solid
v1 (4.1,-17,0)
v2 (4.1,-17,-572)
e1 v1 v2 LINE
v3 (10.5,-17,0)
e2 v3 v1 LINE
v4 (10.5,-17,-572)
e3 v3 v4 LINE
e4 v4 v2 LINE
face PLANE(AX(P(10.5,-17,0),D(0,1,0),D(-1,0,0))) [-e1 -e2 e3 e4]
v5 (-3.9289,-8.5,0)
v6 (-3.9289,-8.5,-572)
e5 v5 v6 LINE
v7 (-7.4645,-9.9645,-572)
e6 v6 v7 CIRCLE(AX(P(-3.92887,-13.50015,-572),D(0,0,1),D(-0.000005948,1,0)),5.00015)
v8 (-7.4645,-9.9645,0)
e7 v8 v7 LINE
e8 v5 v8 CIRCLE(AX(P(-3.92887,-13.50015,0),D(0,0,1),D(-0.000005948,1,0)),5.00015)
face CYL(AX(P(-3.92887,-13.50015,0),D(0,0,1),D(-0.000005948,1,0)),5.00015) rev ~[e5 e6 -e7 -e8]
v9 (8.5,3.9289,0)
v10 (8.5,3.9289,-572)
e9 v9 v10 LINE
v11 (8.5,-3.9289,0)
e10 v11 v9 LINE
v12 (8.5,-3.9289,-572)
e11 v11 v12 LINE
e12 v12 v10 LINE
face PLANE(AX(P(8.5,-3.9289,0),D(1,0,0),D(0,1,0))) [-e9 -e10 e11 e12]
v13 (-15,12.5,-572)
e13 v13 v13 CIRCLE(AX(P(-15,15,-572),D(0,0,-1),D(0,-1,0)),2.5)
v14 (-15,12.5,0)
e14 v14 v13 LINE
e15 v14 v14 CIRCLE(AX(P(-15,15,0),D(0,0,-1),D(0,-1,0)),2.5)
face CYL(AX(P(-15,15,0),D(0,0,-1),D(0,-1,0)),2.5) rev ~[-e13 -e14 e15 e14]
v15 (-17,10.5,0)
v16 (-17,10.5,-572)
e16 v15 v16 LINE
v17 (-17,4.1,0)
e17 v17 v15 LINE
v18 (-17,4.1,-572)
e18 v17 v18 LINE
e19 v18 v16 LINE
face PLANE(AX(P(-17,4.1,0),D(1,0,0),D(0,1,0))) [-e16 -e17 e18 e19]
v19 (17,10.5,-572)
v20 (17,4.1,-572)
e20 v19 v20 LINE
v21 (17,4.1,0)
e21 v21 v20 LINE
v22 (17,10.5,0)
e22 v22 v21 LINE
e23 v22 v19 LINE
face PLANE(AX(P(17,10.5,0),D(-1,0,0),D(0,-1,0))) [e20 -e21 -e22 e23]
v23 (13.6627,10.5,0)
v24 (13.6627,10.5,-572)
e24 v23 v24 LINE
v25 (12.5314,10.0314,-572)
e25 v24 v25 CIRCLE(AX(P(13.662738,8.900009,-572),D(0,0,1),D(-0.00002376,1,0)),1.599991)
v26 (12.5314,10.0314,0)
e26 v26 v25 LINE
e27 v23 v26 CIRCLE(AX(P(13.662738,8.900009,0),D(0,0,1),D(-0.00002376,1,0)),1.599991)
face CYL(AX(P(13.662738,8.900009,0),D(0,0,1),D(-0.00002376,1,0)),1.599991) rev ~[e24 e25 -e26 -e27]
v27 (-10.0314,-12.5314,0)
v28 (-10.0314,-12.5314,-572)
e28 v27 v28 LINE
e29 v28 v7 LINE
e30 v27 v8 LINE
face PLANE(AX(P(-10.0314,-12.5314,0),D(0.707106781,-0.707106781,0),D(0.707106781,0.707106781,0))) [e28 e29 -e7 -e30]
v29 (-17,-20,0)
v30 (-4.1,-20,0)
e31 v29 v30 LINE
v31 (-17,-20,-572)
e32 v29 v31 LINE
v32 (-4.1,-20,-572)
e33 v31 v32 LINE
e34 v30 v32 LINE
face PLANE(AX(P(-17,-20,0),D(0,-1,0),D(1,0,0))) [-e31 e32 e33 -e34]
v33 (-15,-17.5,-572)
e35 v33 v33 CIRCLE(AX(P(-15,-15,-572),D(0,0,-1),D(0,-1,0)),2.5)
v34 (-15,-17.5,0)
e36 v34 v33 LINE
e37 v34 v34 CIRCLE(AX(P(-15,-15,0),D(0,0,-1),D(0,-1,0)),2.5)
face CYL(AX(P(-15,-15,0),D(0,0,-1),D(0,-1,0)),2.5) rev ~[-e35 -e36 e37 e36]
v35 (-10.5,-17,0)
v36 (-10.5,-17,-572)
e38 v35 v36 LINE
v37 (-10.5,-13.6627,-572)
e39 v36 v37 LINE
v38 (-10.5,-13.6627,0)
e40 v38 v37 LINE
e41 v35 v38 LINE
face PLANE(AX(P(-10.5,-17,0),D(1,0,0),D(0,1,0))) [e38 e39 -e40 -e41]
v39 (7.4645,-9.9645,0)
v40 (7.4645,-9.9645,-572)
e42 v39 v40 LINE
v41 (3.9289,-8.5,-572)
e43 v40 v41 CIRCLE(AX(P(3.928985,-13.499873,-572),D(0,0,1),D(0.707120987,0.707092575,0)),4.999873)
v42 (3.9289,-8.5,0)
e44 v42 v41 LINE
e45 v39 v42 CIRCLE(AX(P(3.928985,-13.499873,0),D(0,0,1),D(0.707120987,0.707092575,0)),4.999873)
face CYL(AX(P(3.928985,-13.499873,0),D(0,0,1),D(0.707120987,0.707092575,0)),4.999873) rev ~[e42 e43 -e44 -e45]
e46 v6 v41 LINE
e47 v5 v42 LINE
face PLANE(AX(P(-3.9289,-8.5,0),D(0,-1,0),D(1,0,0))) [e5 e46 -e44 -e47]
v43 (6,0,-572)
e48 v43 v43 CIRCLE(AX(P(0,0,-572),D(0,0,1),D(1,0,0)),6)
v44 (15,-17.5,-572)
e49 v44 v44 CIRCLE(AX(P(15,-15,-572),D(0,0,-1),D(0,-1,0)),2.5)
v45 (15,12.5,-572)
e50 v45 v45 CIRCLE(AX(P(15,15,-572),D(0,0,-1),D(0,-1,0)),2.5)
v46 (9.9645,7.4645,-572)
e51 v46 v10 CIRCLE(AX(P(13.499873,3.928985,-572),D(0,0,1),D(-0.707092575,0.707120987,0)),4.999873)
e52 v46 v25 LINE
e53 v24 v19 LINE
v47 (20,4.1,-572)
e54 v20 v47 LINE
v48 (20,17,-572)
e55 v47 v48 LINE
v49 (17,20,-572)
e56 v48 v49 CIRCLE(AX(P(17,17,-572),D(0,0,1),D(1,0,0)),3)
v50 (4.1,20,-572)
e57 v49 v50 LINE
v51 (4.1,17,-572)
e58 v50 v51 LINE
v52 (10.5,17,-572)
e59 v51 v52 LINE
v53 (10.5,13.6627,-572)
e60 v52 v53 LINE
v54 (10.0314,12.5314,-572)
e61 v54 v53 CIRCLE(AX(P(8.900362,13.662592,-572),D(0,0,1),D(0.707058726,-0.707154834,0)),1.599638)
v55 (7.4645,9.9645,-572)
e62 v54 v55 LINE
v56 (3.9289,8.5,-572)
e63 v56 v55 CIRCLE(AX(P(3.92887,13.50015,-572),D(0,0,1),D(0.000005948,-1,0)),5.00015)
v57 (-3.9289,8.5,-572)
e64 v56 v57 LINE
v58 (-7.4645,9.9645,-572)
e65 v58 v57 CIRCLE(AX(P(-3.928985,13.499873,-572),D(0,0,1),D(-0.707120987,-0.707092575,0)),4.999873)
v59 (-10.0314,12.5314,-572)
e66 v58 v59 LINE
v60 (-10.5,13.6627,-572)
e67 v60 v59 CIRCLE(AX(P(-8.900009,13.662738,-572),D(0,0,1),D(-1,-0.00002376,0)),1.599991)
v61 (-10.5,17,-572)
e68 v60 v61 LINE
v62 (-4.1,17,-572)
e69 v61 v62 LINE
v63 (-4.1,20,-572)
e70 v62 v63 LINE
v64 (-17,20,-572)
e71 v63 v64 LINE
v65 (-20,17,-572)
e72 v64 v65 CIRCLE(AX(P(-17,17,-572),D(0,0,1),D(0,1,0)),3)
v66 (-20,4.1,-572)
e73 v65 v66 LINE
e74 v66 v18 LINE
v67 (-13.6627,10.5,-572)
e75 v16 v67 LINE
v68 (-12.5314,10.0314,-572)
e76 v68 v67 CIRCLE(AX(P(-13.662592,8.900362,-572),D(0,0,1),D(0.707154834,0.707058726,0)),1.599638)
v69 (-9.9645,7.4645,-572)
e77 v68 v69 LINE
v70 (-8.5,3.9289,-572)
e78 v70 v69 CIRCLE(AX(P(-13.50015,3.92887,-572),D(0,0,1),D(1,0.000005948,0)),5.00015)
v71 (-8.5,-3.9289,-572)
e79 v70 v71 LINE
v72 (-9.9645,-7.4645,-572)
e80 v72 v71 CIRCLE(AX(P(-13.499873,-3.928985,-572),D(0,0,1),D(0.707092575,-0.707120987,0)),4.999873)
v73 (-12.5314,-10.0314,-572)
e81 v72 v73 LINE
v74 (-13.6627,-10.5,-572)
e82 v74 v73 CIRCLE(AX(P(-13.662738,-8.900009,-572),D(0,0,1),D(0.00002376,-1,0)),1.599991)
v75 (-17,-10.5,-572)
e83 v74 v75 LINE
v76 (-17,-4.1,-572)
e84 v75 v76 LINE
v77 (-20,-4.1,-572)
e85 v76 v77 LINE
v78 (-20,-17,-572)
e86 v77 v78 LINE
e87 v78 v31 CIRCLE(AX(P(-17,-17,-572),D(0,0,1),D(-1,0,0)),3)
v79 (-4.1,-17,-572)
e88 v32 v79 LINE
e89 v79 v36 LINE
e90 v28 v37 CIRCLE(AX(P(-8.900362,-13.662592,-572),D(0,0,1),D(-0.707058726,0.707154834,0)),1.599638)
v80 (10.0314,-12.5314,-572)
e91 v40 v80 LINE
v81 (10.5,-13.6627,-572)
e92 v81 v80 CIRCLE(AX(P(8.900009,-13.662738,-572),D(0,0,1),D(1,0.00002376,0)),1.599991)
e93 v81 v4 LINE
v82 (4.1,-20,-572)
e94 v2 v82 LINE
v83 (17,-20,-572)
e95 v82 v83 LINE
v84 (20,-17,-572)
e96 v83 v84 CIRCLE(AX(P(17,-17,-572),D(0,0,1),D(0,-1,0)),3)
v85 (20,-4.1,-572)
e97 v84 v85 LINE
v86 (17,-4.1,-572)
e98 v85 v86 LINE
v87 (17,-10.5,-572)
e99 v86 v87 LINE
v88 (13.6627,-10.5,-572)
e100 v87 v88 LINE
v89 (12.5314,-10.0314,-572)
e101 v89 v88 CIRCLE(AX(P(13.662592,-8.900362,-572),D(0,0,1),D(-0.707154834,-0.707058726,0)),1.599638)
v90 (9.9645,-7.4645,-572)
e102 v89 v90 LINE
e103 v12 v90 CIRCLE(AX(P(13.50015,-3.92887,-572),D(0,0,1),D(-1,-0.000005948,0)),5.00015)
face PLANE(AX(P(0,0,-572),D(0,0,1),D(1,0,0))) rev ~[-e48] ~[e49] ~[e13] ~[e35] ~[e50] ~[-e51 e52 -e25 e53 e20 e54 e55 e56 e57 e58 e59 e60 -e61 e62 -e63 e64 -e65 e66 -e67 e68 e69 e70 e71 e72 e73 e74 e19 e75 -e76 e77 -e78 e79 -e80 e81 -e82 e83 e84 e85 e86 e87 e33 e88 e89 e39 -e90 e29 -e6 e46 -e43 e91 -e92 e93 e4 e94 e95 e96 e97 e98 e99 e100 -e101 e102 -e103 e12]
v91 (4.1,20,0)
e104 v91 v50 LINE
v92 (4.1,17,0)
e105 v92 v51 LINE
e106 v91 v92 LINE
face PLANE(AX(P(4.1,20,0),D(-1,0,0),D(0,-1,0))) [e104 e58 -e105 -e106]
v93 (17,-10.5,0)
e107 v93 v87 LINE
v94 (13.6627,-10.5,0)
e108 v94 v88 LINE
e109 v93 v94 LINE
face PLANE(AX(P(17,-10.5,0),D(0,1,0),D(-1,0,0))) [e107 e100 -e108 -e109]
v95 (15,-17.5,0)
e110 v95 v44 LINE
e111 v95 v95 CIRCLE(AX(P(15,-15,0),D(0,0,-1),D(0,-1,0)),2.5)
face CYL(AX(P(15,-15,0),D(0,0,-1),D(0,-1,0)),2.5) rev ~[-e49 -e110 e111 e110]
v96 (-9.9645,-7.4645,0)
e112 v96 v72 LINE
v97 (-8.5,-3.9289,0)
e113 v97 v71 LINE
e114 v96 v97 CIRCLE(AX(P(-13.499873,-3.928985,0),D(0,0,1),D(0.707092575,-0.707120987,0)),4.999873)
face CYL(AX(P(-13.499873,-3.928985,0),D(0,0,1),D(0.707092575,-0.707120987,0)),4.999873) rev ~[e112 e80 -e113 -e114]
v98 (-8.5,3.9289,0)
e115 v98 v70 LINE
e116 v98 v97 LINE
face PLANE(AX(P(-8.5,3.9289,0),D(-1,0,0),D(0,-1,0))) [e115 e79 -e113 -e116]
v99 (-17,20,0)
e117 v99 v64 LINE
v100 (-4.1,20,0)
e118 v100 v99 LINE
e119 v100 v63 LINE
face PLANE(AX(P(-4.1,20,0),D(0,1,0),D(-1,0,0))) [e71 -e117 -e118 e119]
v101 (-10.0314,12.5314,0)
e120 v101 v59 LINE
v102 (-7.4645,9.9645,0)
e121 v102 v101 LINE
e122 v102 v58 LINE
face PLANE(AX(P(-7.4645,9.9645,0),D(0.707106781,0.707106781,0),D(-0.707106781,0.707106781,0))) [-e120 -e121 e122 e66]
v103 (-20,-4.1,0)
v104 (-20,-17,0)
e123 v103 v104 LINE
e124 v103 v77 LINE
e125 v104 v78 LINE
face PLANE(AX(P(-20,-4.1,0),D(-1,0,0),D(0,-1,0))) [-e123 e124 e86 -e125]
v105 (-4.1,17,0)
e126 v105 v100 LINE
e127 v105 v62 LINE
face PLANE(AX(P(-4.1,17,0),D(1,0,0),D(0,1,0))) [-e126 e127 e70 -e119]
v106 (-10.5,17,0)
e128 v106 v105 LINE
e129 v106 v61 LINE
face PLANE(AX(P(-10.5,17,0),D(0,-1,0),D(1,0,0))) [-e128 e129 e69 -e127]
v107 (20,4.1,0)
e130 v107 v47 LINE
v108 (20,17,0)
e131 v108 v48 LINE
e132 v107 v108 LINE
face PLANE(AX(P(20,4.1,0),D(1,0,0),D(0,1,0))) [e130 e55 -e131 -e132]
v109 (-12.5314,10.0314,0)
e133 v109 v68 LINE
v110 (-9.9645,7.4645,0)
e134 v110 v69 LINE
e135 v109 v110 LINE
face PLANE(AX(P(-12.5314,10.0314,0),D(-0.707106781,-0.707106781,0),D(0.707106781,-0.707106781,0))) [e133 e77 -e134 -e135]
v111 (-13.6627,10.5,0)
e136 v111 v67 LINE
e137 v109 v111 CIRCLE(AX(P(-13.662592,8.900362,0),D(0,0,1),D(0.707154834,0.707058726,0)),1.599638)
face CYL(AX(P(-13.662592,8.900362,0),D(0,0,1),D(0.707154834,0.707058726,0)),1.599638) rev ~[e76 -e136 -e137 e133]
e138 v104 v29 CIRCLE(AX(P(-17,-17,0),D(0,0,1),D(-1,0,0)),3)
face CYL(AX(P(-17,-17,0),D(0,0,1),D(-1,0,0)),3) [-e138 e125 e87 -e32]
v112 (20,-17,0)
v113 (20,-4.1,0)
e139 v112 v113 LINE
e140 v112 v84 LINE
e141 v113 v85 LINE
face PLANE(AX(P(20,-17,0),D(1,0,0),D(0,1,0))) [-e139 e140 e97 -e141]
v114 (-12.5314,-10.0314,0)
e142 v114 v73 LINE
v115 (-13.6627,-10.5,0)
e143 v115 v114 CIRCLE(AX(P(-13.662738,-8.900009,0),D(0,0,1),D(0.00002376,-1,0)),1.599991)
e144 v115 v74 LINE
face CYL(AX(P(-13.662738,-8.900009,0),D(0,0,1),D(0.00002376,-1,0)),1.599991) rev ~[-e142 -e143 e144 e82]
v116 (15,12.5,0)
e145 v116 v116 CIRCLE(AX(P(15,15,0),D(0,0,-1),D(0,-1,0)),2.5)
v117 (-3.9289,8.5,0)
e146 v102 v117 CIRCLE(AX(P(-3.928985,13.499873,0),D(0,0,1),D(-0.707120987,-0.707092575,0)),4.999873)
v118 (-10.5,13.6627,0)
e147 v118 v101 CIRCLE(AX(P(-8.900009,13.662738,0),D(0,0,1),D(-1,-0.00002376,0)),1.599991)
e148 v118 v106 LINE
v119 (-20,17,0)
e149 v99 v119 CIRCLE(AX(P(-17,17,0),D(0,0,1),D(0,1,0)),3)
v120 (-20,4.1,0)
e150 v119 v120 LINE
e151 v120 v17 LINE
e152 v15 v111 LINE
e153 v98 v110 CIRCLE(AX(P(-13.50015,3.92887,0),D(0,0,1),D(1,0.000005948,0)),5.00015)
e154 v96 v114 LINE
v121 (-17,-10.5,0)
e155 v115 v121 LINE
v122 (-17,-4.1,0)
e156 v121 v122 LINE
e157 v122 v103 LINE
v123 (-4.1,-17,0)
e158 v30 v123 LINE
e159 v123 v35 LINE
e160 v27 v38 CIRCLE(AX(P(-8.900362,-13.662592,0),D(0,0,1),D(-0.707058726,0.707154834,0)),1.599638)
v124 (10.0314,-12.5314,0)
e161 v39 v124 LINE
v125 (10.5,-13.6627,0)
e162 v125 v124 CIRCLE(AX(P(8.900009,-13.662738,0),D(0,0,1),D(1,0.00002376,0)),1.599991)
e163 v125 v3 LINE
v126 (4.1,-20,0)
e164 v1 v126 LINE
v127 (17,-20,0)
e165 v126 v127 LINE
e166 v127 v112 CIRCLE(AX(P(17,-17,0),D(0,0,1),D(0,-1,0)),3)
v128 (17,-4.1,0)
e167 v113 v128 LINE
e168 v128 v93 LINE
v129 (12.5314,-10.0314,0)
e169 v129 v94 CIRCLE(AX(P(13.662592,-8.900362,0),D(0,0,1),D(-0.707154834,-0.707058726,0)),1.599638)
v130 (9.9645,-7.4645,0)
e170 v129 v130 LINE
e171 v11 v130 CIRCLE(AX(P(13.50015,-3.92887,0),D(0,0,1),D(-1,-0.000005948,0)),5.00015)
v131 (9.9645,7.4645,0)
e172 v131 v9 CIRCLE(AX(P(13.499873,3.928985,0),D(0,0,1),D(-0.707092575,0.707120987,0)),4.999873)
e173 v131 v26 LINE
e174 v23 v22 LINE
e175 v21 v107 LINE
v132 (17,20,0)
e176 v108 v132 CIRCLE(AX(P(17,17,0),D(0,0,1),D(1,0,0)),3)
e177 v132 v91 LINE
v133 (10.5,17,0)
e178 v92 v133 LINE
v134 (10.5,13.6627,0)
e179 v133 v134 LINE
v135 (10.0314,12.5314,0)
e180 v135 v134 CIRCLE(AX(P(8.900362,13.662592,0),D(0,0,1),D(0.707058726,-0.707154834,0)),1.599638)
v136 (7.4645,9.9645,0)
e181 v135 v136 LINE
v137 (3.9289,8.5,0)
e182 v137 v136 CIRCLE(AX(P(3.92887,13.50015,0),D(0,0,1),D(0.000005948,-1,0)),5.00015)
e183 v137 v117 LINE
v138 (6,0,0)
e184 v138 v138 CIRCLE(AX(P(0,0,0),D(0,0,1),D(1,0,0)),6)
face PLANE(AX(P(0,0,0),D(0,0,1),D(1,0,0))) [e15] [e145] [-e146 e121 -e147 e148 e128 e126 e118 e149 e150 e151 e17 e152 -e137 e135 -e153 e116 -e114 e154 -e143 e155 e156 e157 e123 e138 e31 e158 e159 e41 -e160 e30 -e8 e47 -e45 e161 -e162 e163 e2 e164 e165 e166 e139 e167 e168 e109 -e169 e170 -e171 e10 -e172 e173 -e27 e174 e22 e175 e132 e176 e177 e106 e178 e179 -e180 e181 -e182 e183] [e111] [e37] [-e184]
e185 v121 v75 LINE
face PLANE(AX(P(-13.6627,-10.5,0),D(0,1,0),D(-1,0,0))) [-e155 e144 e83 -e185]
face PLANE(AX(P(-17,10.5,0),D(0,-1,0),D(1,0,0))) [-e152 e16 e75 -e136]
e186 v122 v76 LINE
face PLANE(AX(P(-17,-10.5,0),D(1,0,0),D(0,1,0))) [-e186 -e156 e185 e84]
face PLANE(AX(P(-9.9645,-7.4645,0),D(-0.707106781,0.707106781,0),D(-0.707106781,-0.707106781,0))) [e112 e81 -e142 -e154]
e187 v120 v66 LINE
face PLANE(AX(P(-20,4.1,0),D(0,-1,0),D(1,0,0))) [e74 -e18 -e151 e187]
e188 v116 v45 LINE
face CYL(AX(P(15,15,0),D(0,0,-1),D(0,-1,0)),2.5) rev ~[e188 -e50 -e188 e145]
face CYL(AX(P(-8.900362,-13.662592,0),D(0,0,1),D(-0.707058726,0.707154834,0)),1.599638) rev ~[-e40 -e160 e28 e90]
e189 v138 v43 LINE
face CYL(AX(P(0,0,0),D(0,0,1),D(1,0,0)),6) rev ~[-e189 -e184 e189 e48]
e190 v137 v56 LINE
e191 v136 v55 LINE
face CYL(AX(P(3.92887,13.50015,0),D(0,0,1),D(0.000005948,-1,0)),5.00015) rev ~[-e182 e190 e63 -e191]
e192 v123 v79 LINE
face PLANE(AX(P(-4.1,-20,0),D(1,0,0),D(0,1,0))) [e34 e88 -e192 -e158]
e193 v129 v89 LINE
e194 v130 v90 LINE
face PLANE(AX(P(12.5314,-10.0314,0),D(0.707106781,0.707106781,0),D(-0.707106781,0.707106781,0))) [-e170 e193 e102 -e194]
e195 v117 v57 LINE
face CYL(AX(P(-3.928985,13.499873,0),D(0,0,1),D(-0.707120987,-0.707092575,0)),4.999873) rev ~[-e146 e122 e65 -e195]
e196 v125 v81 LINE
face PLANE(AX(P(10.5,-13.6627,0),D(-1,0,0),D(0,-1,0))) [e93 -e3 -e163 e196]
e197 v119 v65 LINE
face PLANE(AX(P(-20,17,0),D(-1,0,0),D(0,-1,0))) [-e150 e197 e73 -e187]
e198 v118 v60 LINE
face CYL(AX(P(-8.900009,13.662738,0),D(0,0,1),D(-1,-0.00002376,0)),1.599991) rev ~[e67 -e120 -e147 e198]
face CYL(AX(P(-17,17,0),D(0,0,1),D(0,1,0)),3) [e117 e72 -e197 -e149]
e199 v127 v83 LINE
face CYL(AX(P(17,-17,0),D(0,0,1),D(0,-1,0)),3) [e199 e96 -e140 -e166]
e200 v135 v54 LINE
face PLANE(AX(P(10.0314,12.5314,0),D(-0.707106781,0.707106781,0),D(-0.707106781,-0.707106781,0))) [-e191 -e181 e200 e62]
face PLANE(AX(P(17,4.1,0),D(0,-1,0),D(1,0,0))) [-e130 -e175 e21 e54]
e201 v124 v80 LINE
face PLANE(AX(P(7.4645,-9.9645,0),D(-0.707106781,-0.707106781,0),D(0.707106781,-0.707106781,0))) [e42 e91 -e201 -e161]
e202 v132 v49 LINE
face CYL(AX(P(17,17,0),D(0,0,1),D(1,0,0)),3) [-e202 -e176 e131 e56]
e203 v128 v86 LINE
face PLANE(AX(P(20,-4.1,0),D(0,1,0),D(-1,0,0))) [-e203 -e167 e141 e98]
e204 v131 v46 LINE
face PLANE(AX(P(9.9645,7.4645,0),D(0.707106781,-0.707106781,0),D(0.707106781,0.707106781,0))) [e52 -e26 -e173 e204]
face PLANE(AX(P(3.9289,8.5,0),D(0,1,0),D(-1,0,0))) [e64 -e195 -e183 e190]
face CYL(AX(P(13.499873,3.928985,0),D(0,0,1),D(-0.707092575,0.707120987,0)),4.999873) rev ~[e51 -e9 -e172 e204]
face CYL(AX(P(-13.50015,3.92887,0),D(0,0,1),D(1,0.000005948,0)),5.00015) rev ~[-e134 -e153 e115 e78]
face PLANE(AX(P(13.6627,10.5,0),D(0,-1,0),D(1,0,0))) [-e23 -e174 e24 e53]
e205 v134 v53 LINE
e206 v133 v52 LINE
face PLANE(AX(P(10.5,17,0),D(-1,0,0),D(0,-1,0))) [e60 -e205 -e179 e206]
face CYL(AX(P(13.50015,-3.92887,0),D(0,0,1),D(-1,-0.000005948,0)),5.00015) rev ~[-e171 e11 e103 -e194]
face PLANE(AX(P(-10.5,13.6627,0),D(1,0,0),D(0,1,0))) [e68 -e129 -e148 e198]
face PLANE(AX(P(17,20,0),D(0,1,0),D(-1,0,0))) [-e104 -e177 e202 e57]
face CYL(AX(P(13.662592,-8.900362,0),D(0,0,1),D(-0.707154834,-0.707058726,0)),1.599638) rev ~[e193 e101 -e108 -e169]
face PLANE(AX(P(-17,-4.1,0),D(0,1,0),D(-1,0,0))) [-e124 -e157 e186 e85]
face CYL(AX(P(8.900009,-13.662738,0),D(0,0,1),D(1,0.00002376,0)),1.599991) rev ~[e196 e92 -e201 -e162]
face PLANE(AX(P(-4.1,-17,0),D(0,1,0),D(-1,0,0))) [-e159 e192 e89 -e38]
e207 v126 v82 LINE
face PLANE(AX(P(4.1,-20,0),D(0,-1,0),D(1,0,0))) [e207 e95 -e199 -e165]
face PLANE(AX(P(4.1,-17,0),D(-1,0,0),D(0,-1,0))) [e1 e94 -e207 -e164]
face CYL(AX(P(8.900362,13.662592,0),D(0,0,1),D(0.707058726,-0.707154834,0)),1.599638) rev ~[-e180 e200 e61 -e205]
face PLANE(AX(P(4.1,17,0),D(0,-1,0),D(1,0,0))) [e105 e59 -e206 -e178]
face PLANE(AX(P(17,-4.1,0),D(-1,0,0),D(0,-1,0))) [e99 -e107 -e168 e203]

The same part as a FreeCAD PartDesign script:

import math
import FreeCAD as App
import Part
import Sketcher
Q = App.Units.Quantity

doc = App.newDocument("Part")
body = doc.addObject("PartDesign::Body", "Body")

sketch1 = doc.addObject("Sketcher::SketchObject", "Sketch")
body.addObject(sketch1)
sketch1.AttachmentSupport = (doc.XY_Plane, [""])
sketch1.MapMode = "FlatFace"
sketch1.addGeometry(Part.LineSegment(App.Vector(-20, -4.1, 0), App.Vector(-20, -17, 0)), False)
sketch1.addGeometry(Part.ArcOfCircle(Part.Circle(App.Vector(-17, -17, 0), App.Vector(0, 0, 1), 3), math.radians(180), math.radians(270)), False)
sketch1.addGeometry(Part.LineSegment(App.Vector(-17, -20, 0), App.Vector(-4.1, -20, 0)), False)
sketch1.addGeometry(Part.LineSegment(App.Vector(-4.1, -20, 0), App.Vector(-4.1, -17, 0)), False)
sketch1.addGeometry(Part.LineSegment(App.Vector(-4.1, -17, 0), App.Vector(-10.5, -17, 0)), False)
sketch1.addGeometry(Part.LineSegment(App.Vector(-10.5, -17, 0), App.Vector(-10.5, -13.7, 0)), False)
sketch1.addGeometry(Part.ArcOfCircle(Part.Circle(App.Vector(-8.9, -13.7, 0), App.Vector(0, 0, 1), 1.6), math.radians(135), math.radians(180)), False)
sketch1.addGeometry(Part.LineSegment(App.Vector(-10, -12.5, 0), App.Vector(-7.5, -10, 0)), False)
sketch1.addGeometry(Part.ArcOfCircle(Part.Circle(App.Vector(-3.9, -13.5, 0), App.Vector(0, 0, 1), 5), math.radians(90), math.radians(135)), False)
sketch1.addGeometry(Part.LineSegment(App.Vector(-3.9, -8.5, 0), App.Vector(3.9, -8.5, 0)), False)
sketch1.addGeometry(Part.ArcOfCircle(Part.Circle(App.Vector(3.9, -13.5, 0), App.Vector(0, 0, 1), 5), math.radians(45), math.radians(90)), False)
sketch1.addGeometry(Part.LineSegment(App.Vector(7.5, -10, 0), App.Vector(10, -12.5, 0)), False)
sketch1.addGeometry(Part.ArcOfCircle(Part.Circle(App.Vector(8.9, -13.7, 0), App.Vector(0, 0, 1), 1.6), math.radians(0), math.radians(45)), False)
sketch1.addGeometry(Part.LineSegment(App.Vector(10.5, -13.7, 0), App.Vector(10.5, -17, 0)), False)
sketch1.addGeometry(Part.LineSegment(App.Vector(10.5, -17, 0), App.Vector(4.1, -17, 0)), False)
sketch1.addGeometry(Part.LineSegment(App.Vector(4.1, -17, 0), App.Vector(4.1, -20, 0)), False)
sketch1.addGeometry(Part.LineSegment(App.Vector(4.1, -20, 0), App.Vector(17, -20, 0)), False)
sketch1.addGeometry(Part.ArcOfCircle(Part.Circle(App.Vector(17, -17, 0), App.Vector(0, 0, 1), 3), math.radians(-90), math.radians(0)), False)
sketch1.addGeometry(Part.LineSegment(App.Vector(20, -17, 0), App.Vector(20, -4.1, 0)), False)
sketch1.addGeometry(Part.LineSegment(App.Vector(20, -4.1, 0), App.Vector(17, -4.1, 0)), False)
sketch1.addGeometry(Part.LineSegment(App.Vector(17, -4.1, 0), App.Vector(17, -10.5, 0)), False)
sketch1.addGeometry(Part.LineSegment(App.Vector(17, -10.5, 0), App.Vector(13.7, -10.5, 0)), False)
sketch1.addGeometry(Part.ArcOfCircle(Part.Circle(App.Vector(13.7, -8.9, 0), App.Vector(0, 0, 1), 1.6), math.radians(-135), math.radians(-90)), False)
sketch1.addGeometry(Part.LineSegment(App.Vector(12.5, -10, 0), App.Vector(10, -7.5, 0)), False)
sketch1.addGeometry(Part.ArcOfCircle(Part.Circle(App.Vector(13.5, -3.9, 0), App.Vector(0, 0, 1), 5), math.radians(180), math.radians(225)), False)
sketch1.addGeometry(Part.LineSegment(App.Vector(8.5, -3.9, 0), App.Vector(8.5, 3.9, 0)), False)
sketch1.addGeometry(Part.ArcOfCircle(Part.Circle(App.Vector(13.5, 3.9, 0), App.Vector(0, 0, 1), 5), math.radians(135), math.radians(180)), False)
sketch1.addGeometry(Part.LineSegment(App.Vector(10, 7.5, 0), App.Vector(12.5, 10, 0)), False)
sketch1.addGeometry(Part.ArcOfCircle(Part.Circle(App.Vector(13.7, 8.9, 0), App.Vector(0, 0, 1), 1.6), math.radians(90), math.radians(135)), False)
sketch1.addGeometry(Part.LineSegment(App.Vector(13.7, 10.5, 0), App.Vector(17, 10.5, 0)), False)
sketch1.addGeometry(Part.LineSegment(App.Vector(17, 10.5, 0), App.Vector(17, 4.1, 0)), False)
sketch1.addGeometry(Part.LineSegment(App.Vector(17, 4.1, 0), App.Vector(20, 4.1, 0)), False)
sketch1.addGeometry(Part.LineSegment(App.Vector(20, 4.1, 0), App.Vector(20, 17, 0)), False)
sketch1.addGeometry(Part.ArcOfCircle(Part.Circle(App.Vector(17, 17, 0), App.Vector(0, 0, 1), 3), math.radians(0), math.radians(90)), False)
sketch1.addGeometry(Part.LineSegment(App.Vector(17, 20, 0), App.Vector(4.1, 20, 0)), False)
sketch1.addGeometry(Part.LineSegment(App.Vector(4.1, 20, 0), App.Vector(4.1, 17, 0)), False)
sketch1.addGeometry(Part.LineSegment(App.Vector(4.1, 17, 0), App.Vector(10.5, 17, 0)), False)
sketch1.addGeometry(Part.LineSegment(App.Vector(10.5, 17, 0), App.Vector(10.5, 13.7, 0)), False)
sketch1.addGeometry(Part.ArcOfCircle(Part.Circle(App.Vector(8.9, 13.7, 0), App.Vector(0, 0, 1), 1.6), math.radians(-45), math.radians(0)), False)
sketch1.addGeometry(Part.LineSegment(App.Vector(10, 12.5, 0), App.Vector(7.5, 10, 0)), False)
sketch1.addGeometry(Part.ArcOfCircle(Part.Circle(App.Vector(3.9, 13.5, 0), App.Vector(0, 0, 1), 5), math.radians(-90), math.radians(-45)), False)
sketch1.addGeometry(Part.LineSegment(App.Vector(3.9, 8.5, 0), App.Vector(-3.9, 8.5, 0)), False)
sketch1.addGeometry(Part.ArcOfCircle(Part.Circle(App.Vector(-3.9, 13.5, 0), App.Vector(0, 0, 1), 5), math.radians(-135), math.radians(-90)), False)
sketch1.addGeometry(Part.LineSegment(App.Vector(-7.5, 10, 0), App.Vector(-10, 12.5, 0)), False)
sketch1.addGeometry(Part.ArcOfCircle(Part.Circle(App.Vector(-8.9, 13.7, 0), App.Vector(0, 0, 1), 1.6), math.radians(180), math.radians(225)), False)
sketch1.addGeometry(Part.LineSegment(App.Vector(-10.5, 13.7, 0), App.Vector(-10.5, 17, 0)), False)
sketch1.addGeometry(Part.LineSegment(App.Vector(-10.5, 17, 0), App.Vector(-4.1, 17, 0)), False)
sketch1.addGeometry(Part.LineSegment(App.Vector(-4.1, 17, 0), App.Vector(-4.1, 20, 0)), False)
sketch1.addGeometry(Part.LineSegment(App.Vector(-4.1, 20, 0), App.Vector(-17, 20, 0)), False)
sketch1.addGeometry(Part.ArcOfCircle(Part.Circle(App.Vector(-17, 17, 0), App.Vector(0, 0, 1), 3), math.radians(90), math.radians(180)), False)
sketch1.addGeometry(Part.LineSegment(App.Vector(-20, 17, 0), App.Vector(-20, 4.1, 0)), False)
sketch1.addGeometry(Part.LineSegment(App.Vector(-20, 4.1, 0), App.Vector(-17, 4.1, 0)), False)
sketch1.addGeometry(Part.LineSegment(App.Vector(-17, 4.1, 0), App.Vector(-17, 10.5, 0)), False)
sketch1.addGeometry(Part.LineSegment(App.Vector(-17, 10.5, 0), App.Vector(-13.7, 10.5, 0)), False)
sketch1.addGeometry(Part.ArcOfCircle(Part.Circle(App.Vector(-13.7, 8.9, 0), App.Vector(0, 0, 1), 1.6), math.radians(45), math.radians(90)), False)
sketch1.addGeometry(Part.LineSegment(App.Vector(-12.5, 10, 0), App.Vector(-10, 7.5, 0)), False)
sketch1.addGeometry(Part.ArcOfCircle(Part.Circle(App.Vector(-13.5, 3.9, 0), App.Vector(0, 0, 1), 5), math.radians(0), math.radians(45)), False)
sketch1.addGeometry(Part.LineSegment(App.Vector(-8.5, 3.9, 0), App.Vector(-8.5, -3.9, 0)), False)
sketch1.addGeometry(Part.ArcOfCircle(Part.Circle(App.Vector(-13.5, -3.9, 0), App.Vector(0, 0, 1), 5), math.radians(-45), math.radians(0)), False)
sketch1.addGeometry(Part.LineSegment(App.Vector(-10, -7.5, 0), App.Vector(-12.5, -10, 0)), False)
sketch1.addGeometry(Part.ArcOfCircle(Part.Circle(App.Vector(-13.7, -8.9, 0), App.Vector(0, 0, 1), 1.6), math.radians(-90), math.radians(-45)), False)
sketch1.addGeometry(Part.LineSegment(App.Vector(-13.7, -10.5, 0), App.Vector(-17, -10.5, 0)), False)
sketch1.addGeometry(Part.LineSegment(App.Vector(-17, -10.5, 0), App.Vector(-17, -4.1, 0)), False)
sketch1.addGeometry(Part.LineSegment(App.Vector(-17, -4.1, 0), App.Vector(-20, -4.1, 0)), False)
sketch1.addGeometry(Part.Circle(App.Vector(0, 0, 0), App.Vector(0, 0, 1), 6), False)
sketch1.addConstraint(Sketcher.Constraint("Tangent", 0, 2, 1, 1))
sketch1.addConstraint(Sketcher.Constraint("Tangent", 1, 2, 2, 1))
sketch1.addConstraint(Sketcher.Constraint("Coincident", 2, 2, 3, 1))
sketch1.addConstraint(Sketcher.Constraint("Coincident", 3, 2, 4, 1))
sketch1.addConstraint(Sketcher.Constraint("Coincident", 4, 2, 5, 1))
sketch1.addConstraint(Sketcher.Constraint("Tangent", 5, 2, 6, 2))
sketch1.addConstraint(Sketcher.Constraint("Tangent", 6, 1, 7, 1))
sketch1.addConstraint(Sketcher.Constraint("Tangent", 7, 2, 8, 2))
sketch1.addConstraint(Sketcher.Constraint("Tangent", 8, 1, 9, 1))
sketch1.addConstraint(Sketcher.Constraint("Tangent", 9, 2, 10, 2))
sketch1.addConstraint(Sketcher.Constraint("Tangent", 10, 1, 11, 1))
sketch1.addConstraint(Sketcher.Constraint("Tangent", 11, 2, 12, 2))
sketch1.addConstraint(Sketcher.Constraint("Tangent", 12, 1, 13, 1))
sketch1.addConstraint(Sketcher.Constraint("Coincident", 13, 2, 14, 1))
sketch1.addConstraint(Sketcher.Constraint("Coincident", 14, 2, 15, 1))
sketch1.addConstraint(Sketcher.Constraint("Coincident", 15, 2, 16, 1))
sketch1.addConstraint(Sketcher.Constraint("Tangent", 16, 2, 17, 1))
sketch1.addConstraint(Sketcher.Constraint("Tangent", 17, 2, 18, 1))
sketch1.addConstraint(Sketcher.Constraint("Coincident", 18, 2, 19, 1))
sketch1.addConstraint(Sketcher.Constraint("Coincident", 19, 2, 20, 1))
sketch1.addConstraint(Sketcher.Constraint("Coincident", 20, 2, 21, 1))
sketch1.addConstraint(Sketcher.Constraint("Tangent", 21, 2, 22, 2))
sketch1.addConstraint(Sketcher.Constraint("Tangent", 22, 1, 23, 1))
sketch1.addConstraint(Sketcher.Constraint("Tangent", 23, 2, 24, 2))
sketch1.addConstraint(Sketcher.Constraint("Tangent", 24, 1, 25, 1))
sketch1.addConstraint(Sketcher.Constraint("Tangent", 25, 2, 26, 2))
sketch1.addConstraint(Sketcher.Constraint("Tangent", 26, 1, 27, 1))
sketch1.addConstraint(Sketcher.Constraint("Tangent", 27, 2, 28, 2))
sketch1.addConstraint(Sketcher.Constraint("Tangent", 28, 1, 29, 1))
sketch1.addConstraint(Sketcher.Constraint("Coincident", 29, 2, 30, 1))
sketch1.addConstraint(Sketcher.Constraint("Coincident", 30, 2, 31, 1))
sketch1.addConstraint(Sketcher.Constraint("Coincident", 31, 2, 32, 1))
sketch1.addConstraint(Sketcher.Constraint("Tangent", 32, 2, 33, 1))
sketch1.addConstraint(Sketcher.Constraint("Tangent", 33, 2, 34, 1))
sketch1.addConstraint(Sketcher.Constraint("Coincident", 34, 2, 35, 1))
sketch1.addConstraint(Sketcher.Constraint("Coincident", 35, 2, 36, 1))
sketch1.addConstraint(Sketcher.Constraint("Coincident", 36, 2, 37, 1))
sketch1.addConstraint(Sketcher.Constraint("Tangent", 37, 2, 38, 2))
sketch1.addConstraint(Sketcher.Constraint("Tangent", 38, 1, 39, 1))
sketch1.addConstraint(Sketcher.Constraint("Tangent", 39, 2, 40, 2))
sketch1.addConstraint(Sketcher.Constraint("Tangent", 40, 1, 41, 1))
sketch1.addConstraint(Sketcher.Constraint("Tangent", 41, 2, 42, 2))
sketch1.addConstraint(Sketcher.Constraint("Tangent", 42, 1, 43, 1))
sketch1.addConstraint(Sketcher.Constraint("Tangent", 43, 2, 44, 2))
sketch1.addConstraint(Sketcher.Constraint("Tangent", 44, 1, 45, 1))
sketch1.addConstraint(Sketcher.Constraint("Coincident", 45, 2, 46, 1))
sketch1.addConstraint(Sketcher.Constraint("Coincident", 46, 2, 47, 1))
sketch1.addConstraint(Sketcher.Constraint("Coincident", 47, 2, 48, 1))
sketch1.addConstraint(Sketcher.Constraint("Tangent", 48, 2, 49, 1))
sketch1.addConstraint(Sketcher.Constraint("Tangent", 49, 2, 50, 1))
sketch1.addConstraint(Sketcher.Constraint("Coincident", 50, 2, 51, 1))
sketch1.addConstraint(Sketcher.Constraint("Coincident", 51, 2, 52, 1))
sketch1.addConstraint(Sketcher.Constraint("Coincident", 52, 2, 53, 1))
sketch1.addConstraint(Sketcher.Constraint("Tangent", 53, 2, 54, 2))
sketch1.addConstraint(Sketcher.Constraint("Tangent", 54, 1, 55, 1))
sketch1.addConstraint(Sketcher.Constraint("Tangent", 55, 2, 56, 2))
sketch1.addConstraint(Sketcher.Constraint("Tangent", 56, 1, 57, 1))
sketch1.addConstraint(Sketcher.Constraint("Tangent", 57, 2, 58, 2))
sketch1.addConstraint(Sketcher.Constraint("Tangent", 58, 1, 59, 1))
sketch1.addConstraint(Sketcher.Constraint("Tangent", 59, 2, 60, 2))
sketch1.addConstraint(Sketcher.Constraint("Tangent", 60, 1, 61, 1))
sketch1.addConstraint(Sketcher.Constraint("Coincident", 61, 2, 62, 1))
sketch1.addConstraint(Sketcher.Constraint("Coincident", 62, 2, 63, 1))
sketch1.addConstraint(Sketcher.Constraint("Coincident", 63, 2, 0, 1))
sketch1.addConstraint(Sketcher.Constraint("Vertical", 0))
sketch1.addConstraint(Sketcher.Constraint("Horizontal", 2))
sketch1.addConstraint(Sketcher.Constraint("Vertical", 3))
sketch1.addConstraint(Sketcher.Constraint("Horizontal", 4))
sketch1.addConstraint(Sketcher.Constraint("Vertical", 5))
sketch1.addConstraint(Sketcher.Constraint("Horizontal", 9))
sketch1.addConstraint(Sketcher.Constraint("Vertical", 13))
sketch1.addConstraint(Sketcher.Constraint("Horizontal", 14))
sketch1.addConstraint(Sketcher.Constraint("Vertical", 15))
sketch1.addConstraint(Sketcher.Constraint("Horizontal", 16))
sketch1.addConstraint(Sketcher.Constraint("Vertical", 18))
sketch1.addConstraint(Sketcher.Constraint("Horizontal", 19))
sketch1.addConstraint(Sketcher.Constraint("Vertical", 20))
sketch1.addConstraint(Sketcher.Constraint("Horizontal", 21))
sketch1.addConstraint(Sketcher.Constraint("Vertical", 25))
sketch1.addConstraint(Sketcher.Constraint("Horizontal", 29))
sketch1.addConstraint(Sketcher.Constraint("Vertical", 30))
sketch1.addConstraint(Sketcher.Constraint("Horizontal", 31))
sketch1.addConstraint(Sketcher.Constraint("Vertical", 32))
sketch1.addConstraint(Sketcher.Constraint("Horizontal", 34))
sketch1.addConstraint(Sketcher.Constraint("Vertical", 35))
sketch1.addConstraint(Sketcher.Constraint("Horizontal", 36))
sketch1.addConstraint(Sketcher.Constraint("Vertical", 37))
sketch1.addConstraint(Sketcher.Constraint("Horizontal", 41))
sketch1.addConstraint(Sketcher.Constraint("Vertical", 45))
sketch1.addConstraint(Sketcher.Constraint("Horizontal", 46))
sketch1.addConstraint(Sketcher.Constraint("Vertical", 47))
sketch1.addConstraint(Sketcher.Constraint("Horizontal", 48))
sketch1.addConstraint(Sketcher.Constraint("Vertical", 50))
sketch1.addConstraint(Sketcher.Constraint("Horizontal", 51))
sketch1.addConstraint(Sketcher.Constraint("Vertical", 52))
sketch1.addConstraint(Sketcher.Constraint("Horizontal", 53))
sketch1.addConstraint(Sketcher.Constraint("Vertical", 57))
sketch1.addConstraint(Sketcher.Constraint("Horizontal", 61))
sketch1.addConstraint(Sketcher.Constraint("Vertical", 62))
sketch1.addConstraint(Sketcher.Constraint("Horizontal", 63))
sketch1.addConstraint(Sketcher.Constraint("Coincident", 64, 3, -1, 1))
sketch1.addConstraint(Sketcher.Constraint("Equal", 8, 10))
sketch1.addConstraint(Sketcher.Constraint("Equal", 6, 12))
sketch1.addConstraint(Sketcher.Constraint("Equal", 1, 17))
sketch1.addConstraint(Sketcher.Constraint("Equal", 12, 22))
sketch1.addConstraint(Sketcher.Constraint("Equal", 10, 24))
sketch1.addConstraint(Sketcher.Constraint("Equal", 24, 26))
sketch1.addConstraint(Sketcher.Constraint("Equal", 22, 28))
sketch1.addConstraint(Sketcher.Constraint("Equal", 17, 33))
sketch1.addConstraint(Sketcher.Constraint("Equal", 28, 38))
sketch1.addConstraint(Sketcher.Constraint("Equal", 26, 40))
sketch1.addConstraint(Sketcher.Constraint("Equal", 40, 42))
sketch1.addConstraint(Sketcher.Constraint("Equal", 38, 44))
sketch1.addConstraint(Sketcher.Constraint("Equal", 33, 49))
sketch1.addConstraint(Sketcher.Constraint("Equal", 44, 54))
sketch1.addConstraint(Sketcher.Constraint("Equal", 42, 56))
sketch1.addConstraint(Sketcher.Constraint("Equal", 56, 58))
sketch1.addConstraint(Sketcher.Constraint("Equal", 54, 60))
sketch1.addConstraint(Sketcher.Constraint("Symmetric", 1, 3, 33, 3, -1, 1))
sketch1.addConstraint(Sketcher.Constraint("Symmetric", 6, 3, 38, 3, -1, 1))
sketch1.addConstraint(Sketcher.Constraint("Symmetric", 8, 3, 40, 3, -1, 1))
sketch1.addConstraint(Sketcher.Constraint("Symmetric", 12, 3, 44, 3, -1, 1))
sketch1.addConstraint(Sketcher.Constraint("Symmetric", 17, 3, 49, 3, -1, 1))
sketch1.addConstraint(Sketcher.Constraint("Symmetric", 22, 3, 54, 3, -1, 1))
sketch1.addConstraint(Sketcher.Constraint("Symmetric", 24, 3, 56, 3, -1, 1))
sketch1.addConstraint(Sketcher.Constraint("Symmetric", 28, 3, 60, 3, -1, 1))
sketch1.addConstraint(Sketcher.Constraint("Symmetric", 3, 2, 35, 2, -1, 1))
sketch1.addConstraint(Sketcher.Constraint("Symmetric", 14, 2, 46, 2, -1, 1))
sketch1.addConstraint(Sketcher.Constraint("Symmetric", 19, 2, 51, 2, -1, 1))
sketch1.addConstraint(Sketcher.Constraint("Symmetric", 30, 2, 62, 2, -1, 1))
sketch1.addConstraint(Sketcher.Constraint("Symmetric", 6, 3, 12, 3, -2))
sketch1.addConstraint(Sketcher.Constraint("Symmetric", 1, 3, 17, 3, -2))
sketch1.addConstraint(Sketcher.Constraint("Symmetric", 28, 3, 54, 3, -2))
sketch1.addConstraint(Sketcher.Constraint("Symmetric", 3, 2, 14, 2, -2))
sketch1.addConstraint(Sketcher.Constraint("Symmetric", 30, 2, 51, 2, -2))
sketch1.addConstraint(Sketcher.Constraint("Perpendicular", 7, 11))
sketch1.addConstraint(Sketcher.Constraint("Parallel", 11, 23))
sketch1.addConstraint(Sketcher.Constraint("Perpendicular", 23, 27))
sketch1.addConstraint(Sketcher.Constraint("Perpendicular", 39, 43))
sketch1.addConstraint(Sketcher.Constraint("Perpendicular", 55, 59))
sketch1.addConstraint(Sketcher.Constraint("Horizontal", 26, 3, 56, 3))
sketch1.addConstraint(Sketcher.Constraint("Horizontal", 0, 2, 3, 2))
sketch1.addConstraint(Sketcher.Constraint("Vertical", 16, 2, 19, 2))
sketch1.addConstraint(Sketcher.Constraint("Equal", 48, 0))
sketch1.addConstraint(Sketcher.Constraint("Equal", 61, 5))
sketch1.addConstraint(Sketcher.Constraint("Equal", 46, 20))
sketch1.addConstraint(Sketcher.Constraint("Equal", 41, 25))
sketch1.addConstraint(Sketcher.Constraint("Equal", 11, 23))
sketch1.addConstraint(Sketcher.Constraint("Diameter", 64, Q("12 mm")))
sketch1.addConstraint(Sketcher.Constraint("Radius", 1, Q("3 mm")))
sketch1.addConstraint(Sketcher.Constraint("Radius", 8, Q("5 mm")))
sketch1.addConstraint(Sketcher.Constraint("DistanceX", 2, 1, 2, 2, Q("12.9 mm")))
sketch1.addConstraint(Sketcher.Constraint("DistanceX", 4, 2, 4, 1, Q("6.4 mm")))
sketch1.addConstraint(Sketcher.Constraint("DistanceX", 1, 3, -1, 1, Q("17 mm")))
sketch1.addConstraint(Sketcher.Constraint("DistanceY", 8, 3, -1, 1, Q("13.5 mm")))
sketch1.addConstraint(Sketcher.Constraint("Radius", 6, Q("1.5998 mm")))
sketch1.addConstraint(Sketcher.Constraint("DistanceX", 9, 1, 9, 2, Q("7.8578 mm")))
pad1 = doc.addObject("PartDesign::Pad", "Pad")
body.addObject(pad1)
pad1.Profile = sketch1
pad1.Length = 572
pad1.Reversed = True

sketch2 = doc.addObject("Sketcher::SketchObject", "Sketch001")
body.addObject(sketch2)
sketch2.AttachmentSupport = (doc.XY_Plane, [""])
sketch2.MapMode = "FlatFace"
sketch2.addGeometry(Part.Circle(App.Vector(-15, -15, 0), App.Vector(0, 0, 1), 2.5), False)
sketch2.addConstraint(Sketcher.Constraint("Diameter", 0, Q("5 mm")))
sketch2.addConstraint(Sketcher.Constraint("DistanceX", 0, 3, -1, 1, Q("15 mm")))
sketch2.addConstraint(Sketcher.Constraint("DistanceY", 0, 3, -1, 1, Q("15 mm")))
doc.recompute()
hole = doc.addObject("PartDesign::Hole", "Hole")
body.addObject(hole)
hole.Profile = sketch2
hole.ThreadType = "None"
hole.Diameter = 5
hole.DepthType = "Dimension"
hole.Depth = 6000
hole.DrillPoint = "Flat"

sketch3 = doc.addObject("Sketcher::SketchObject", "Sketch002")
body.addObject(sketch3)
sketch3.AttachmentSupport = (doc.XY_Plane, [""])
sketch3.MapMode = "FlatFace"
sketch3.addGeometry(Part.Circle(App.Vector(15, -15, 0), App.Vector(0, 0, 1), 2.5), False)
sketch3.addConstraint(Sketcher.Constraint("Diameter", 0, Q("5 mm")))
sketch3.addConstraint(Sketcher.Constraint("DistanceX", -1, 1, 0, 3, Q("15 mm")))
sketch3.addConstraint(Sketcher.Constraint("DistanceY", 0, 3, -1, 1, Q("15 mm")))
doc.recompute()
hole2 = doc.addObject("PartDesign::Hole", "Hole001")
body.addObject(hole2)
hole2.Profile = sketch3
hole2.ThreadType = "None"
hole2.Diameter = 5
hole2.DepthType = "Dimension"
hole2.Depth = 6000
hole2.DrillPoint = "Flat"

sketch4 = doc.addObject("Sketcher::SketchObject", "Sketch003")
body.addObject(sketch4)
sketch4.AttachmentSupport = (doc.XY_Plane, [""])
sketch4.MapMode = "FlatFace"
sketch4.addGeometry(Part.Circle(App.Vector(15, 15, 0), App.Vector(0, 0, 1), 2.5), False)
sketch4.addConstraint(Sketcher.Constraint("Diameter", 0, Q("5 mm")))
sketch4.addConstraint(Sketcher.Constraint("DistanceX", -1, 1, 0, 3, Q("15 mm")))
sketch4.addConstraint(Sketcher.Constraint("DistanceY", -1, 1, 0, 3, Q("15 mm")))
doc.recompute()
hole3 = doc.addObject("PartDesign::Hole", "Hole002")
body.addObject(hole3)
hole3.Profile = sketch4
hole3.ThreadType = "None"
hole3.Diameter = 5
hole3.DepthType = "Dimension"
hole3.Depth = 6000
hole3.DrillPoint = "Flat"

sketch5 = doc.addObject("Sketcher::SketchObject", "Sketch004")
body.addObject(sketch5)
sketch5.AttachmentSupport = (doc.XY_Plane, [""])
sketch5.MapMode = "FlatFace"
sketch5.addGeometry(Part.Circle(App.Vector(-15, 15, 0), App.Vector(0, 0, 1), 2.5), False)
sketch5.addConstraint(Sketcher.Constraint("Diameter", 0, Q("5 mm")))
sketch5.addConstraint(Sketcher.Constraint("DistanceX", 0, 3, -1, 1, Q("15 mm")))
sketch5.addConstraint(Sketcher.Constraint("DistanceY", -1, 1, 0, 3, Q("15 mm")))
doc.recompute()
hole4 = doc.addObject("PartDesign::Hole", "Hole003")
body.addObject(hole4)
hole4.Profile = sketch5
hole4.ThreadType = "None"
hole4.Diameter = 5
hole4.DepthType = "Dimension"
hole4.Depth = 6000
hole4.DrillPoint = "Flat"

doc.recompute()
